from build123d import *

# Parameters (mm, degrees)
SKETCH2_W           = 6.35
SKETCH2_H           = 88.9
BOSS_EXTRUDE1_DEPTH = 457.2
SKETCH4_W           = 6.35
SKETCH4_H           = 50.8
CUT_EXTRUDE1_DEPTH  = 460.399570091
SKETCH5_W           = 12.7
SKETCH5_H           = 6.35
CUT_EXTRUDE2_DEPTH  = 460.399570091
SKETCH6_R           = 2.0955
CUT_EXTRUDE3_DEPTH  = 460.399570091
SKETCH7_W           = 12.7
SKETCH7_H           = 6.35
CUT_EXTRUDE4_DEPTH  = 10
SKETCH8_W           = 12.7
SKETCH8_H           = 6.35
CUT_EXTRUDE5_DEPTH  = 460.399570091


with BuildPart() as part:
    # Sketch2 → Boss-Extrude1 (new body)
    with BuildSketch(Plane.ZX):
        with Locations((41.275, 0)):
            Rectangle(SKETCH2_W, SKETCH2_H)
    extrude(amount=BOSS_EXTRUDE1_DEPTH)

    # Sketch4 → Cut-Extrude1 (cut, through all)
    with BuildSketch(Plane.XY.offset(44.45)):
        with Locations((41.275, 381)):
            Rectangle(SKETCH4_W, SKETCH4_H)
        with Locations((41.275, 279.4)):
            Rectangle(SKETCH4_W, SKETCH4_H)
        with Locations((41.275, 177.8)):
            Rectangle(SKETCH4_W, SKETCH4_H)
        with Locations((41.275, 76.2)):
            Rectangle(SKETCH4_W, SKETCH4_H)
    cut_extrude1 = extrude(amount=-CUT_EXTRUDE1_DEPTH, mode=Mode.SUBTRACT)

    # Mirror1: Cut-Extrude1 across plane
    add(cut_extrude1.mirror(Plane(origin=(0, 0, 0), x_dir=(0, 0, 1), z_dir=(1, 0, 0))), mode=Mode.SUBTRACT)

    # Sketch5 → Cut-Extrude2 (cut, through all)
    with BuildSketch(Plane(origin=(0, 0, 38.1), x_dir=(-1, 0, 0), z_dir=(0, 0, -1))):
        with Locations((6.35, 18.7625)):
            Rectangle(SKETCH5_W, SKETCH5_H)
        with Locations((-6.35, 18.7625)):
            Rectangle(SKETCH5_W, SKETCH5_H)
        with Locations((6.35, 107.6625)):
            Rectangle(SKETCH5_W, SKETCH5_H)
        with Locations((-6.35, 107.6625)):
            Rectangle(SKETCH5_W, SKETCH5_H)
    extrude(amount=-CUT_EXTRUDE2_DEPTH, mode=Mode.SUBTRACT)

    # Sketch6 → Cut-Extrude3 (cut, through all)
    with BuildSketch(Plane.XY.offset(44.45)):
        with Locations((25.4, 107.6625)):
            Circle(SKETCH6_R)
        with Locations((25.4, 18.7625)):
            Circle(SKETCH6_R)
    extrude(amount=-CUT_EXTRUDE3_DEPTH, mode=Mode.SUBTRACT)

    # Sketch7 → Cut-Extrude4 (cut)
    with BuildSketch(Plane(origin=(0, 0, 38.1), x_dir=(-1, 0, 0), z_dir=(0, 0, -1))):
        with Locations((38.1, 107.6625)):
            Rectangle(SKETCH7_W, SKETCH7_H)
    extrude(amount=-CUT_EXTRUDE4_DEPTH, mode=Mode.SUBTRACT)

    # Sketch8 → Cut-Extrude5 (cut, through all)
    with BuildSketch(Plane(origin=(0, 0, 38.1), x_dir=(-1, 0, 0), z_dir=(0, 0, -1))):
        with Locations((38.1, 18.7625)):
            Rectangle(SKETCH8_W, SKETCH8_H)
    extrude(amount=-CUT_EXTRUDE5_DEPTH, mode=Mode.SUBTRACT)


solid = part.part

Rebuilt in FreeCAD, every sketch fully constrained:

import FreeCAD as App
import Part
import Sketcher
from FreeCAD import Vector
Q = App.Units.Quantity

doc = App.newDocument("Part")
params = doc.addObject("Spreadsheet::Sheet", "Params")
for row, (alias, value) in enumerate([
    ("sketch1_width", "3.5 in"),
    ("sketch1_height", "0.25 in"),
    ("pad1_length", "18 in"),
    ("sketch2_height", "2 in"),
    ("sketch2_width", "0.25 in"),
    ("sketch3_width", "1 in"),
    ("sketch3_height", "0.25 in"),
    ("sketch4_diameter", "0.165 in"),
    ("sketch5_width", "0.5 in"),
    ("sketch5_height", "0.25 in"),
    ("pocket4_length", "10 mm"),
    ("sketch6_width", "0.5 in"),
    ("sketch6_height", "0.25 in"),
], start=1):
    params.set(f"A{row}", alias)
    params.set(f"B{row}", "=" + value)
    params.setAlias(f"B{row}", alias)

body = doc.addObject("PartDesign::Body", "Body")

# Sketch on XZ plane
sketch1 = doc.addObject("Sketcher::SketchObject", "Sketch")
body.addObject(sketch1)
sketch1.AttachmentSupport = (doc.XZ_Plane, [""])
sketch1.MapMode = "FlatFace"
sketch1.addGeometry([
    Part.LineSegment(Vector(44, 38, 0), Vector(-44, 38, 0)),
    Part.LineSegment(Vector(-44, 38, 0), Vector(-44, 44, 0)),
    Part.LineSegment(Vector(-44, 44, 0), Vector(44, 44, 0)),
    Part.LineSegment(Vector(44, 44, 0), Vector(44, 38, 0)),
], False)
sketch1.addConstraint([
    Sketcher.Constraint("Coincident", 0, 2, 1, 1),
    Sketcher.Constraint("Coincident", 1, 2, 2, 1),
    Sketcher.Constraint("Coincident", 2, 2, 3, 1),
    Sketcher.Constraint("Coincident", 3, 2, 0, 1),
    Sketcher.Constraint("Horizontal", 0),
    Sketcher.Constraint("Vertical", 1),
    Sketcher.Constraint("Horizontal", 2),
    Sketcher.Constraint("Vertical", 3),
    Sketcher.Constraint("DistanceX", 0, 2, 0, 1, Q("3.5 in")),
    Sketcher.Constraint("DistanceY", 1, 1, 1, 2, Q("0.25 in")),
    Sketcher.Constraint("DistanceY", -1, 1, 0, 2, Q("1.5 in")),
    Sketcher.Constraint("DistanceX", 0, 2, -1, 1, Q("1.75 in")),
])
sketch1.setExpression("Constraints[8]", "Params.sketch1_width")
sketch1.setExpression("Constraints[9]", "Params.sketch1_height")
pad1 = doc.addObject("PartDesign::Pad", "Pad")
body.addObject(pad1)
pad1.Profile = sketch1
pad1.setExpression("Length", "Params.pad1_length")
pad1.Reversed = True

# Sketch on XY plane
sketch2 = doc.addObject("Sketcher::SketchObject", "Sketch001")
body.addObject(sketch2)
sketch2.AttachmentSupport = (doc.XY_Plane, [""])
sketch2.MapMode = "FlatFace"
sketch2.AttachmentOffset = App.Placement(Vector(0, 0, 1.75 * 25.4), App.Rotation())
sketch2.addGeometry([
    Part.LineSegment(Vector(38, 406, 0), Vector(38, 356, 0)),  # 0
    Part.LineSegment(Vector(38, 356, 0), Vector(44, 356, 0)),  # 1
    Part.LineSegment(Vector(44, 356, 0), Vector(44, 406, 0)),  # 2
    Part.LineSegment(Vector(44, 406, 0), Vector(38, 406, 0)),  # 3
    Part.LineSegment(Vector(38, 305, 0), Vector(38, 254, 0)),  # 4
    Part.LineSegment(Vector(38, 254, 0), Vector(44, 254, 0)),  # 5
    Part.LineSegment(Vector(44, 254, 0), Vector(44, 305, 0)),  # 6
    Part.LineSegment(Vector(44, 305, 0), Vector(38, 305, 0)),  # 7
    Part.LineSegment(Vector(38, 203, 0), Vector(38, 152, 0)),  # 8
    Part.LineSegment(Vector(38, 152, 0), Vector(44, 152, 0)),  # 9
    Part.LineSegment(Vector(44, 152, 0), Vector(44, 203, 0)),  # 10
    Part.LineSegment(Vector(44, 203, 0), Vector(38, 203, 0)),  # 11
    Part.LineSegment(Vector(38, 102, 0), Vector(38, 51, 0)),  # 12
    Part.LineSegment(Vector(38, 51, 0), Vector(44, 51, 0)),  # 13
    Part.LineSegment(Vector(44, 51, 0), Vector(44, 102, 0)),  # 14
    Part.LineSegment(Vector(44, 102, 0), Vector(38, 102, 0)),  # 15
], False)
sketch2.addConstraint([
    Sketcher.Constraint("Coincident", 0, 2, 1, 1),
    Sketcher.Constraint("Coincident", 1, 2, 2, 1),
    Sketcher.Constraint("Coincident", 2, 2, 3, 1),
    Sketcher.Constraint("Coincident", 3, 2, 0, 1),
    Sketcher.Constraint("Coincident", 4, 2, 5, 1),
    Sketcher.Constraint("Coincident", 5, 2, 6, 1),
    Sketcher.Constraint("Coincident", 6, 2, 7, 1),
    Sketcher.Constraint("Coincident", 7, 2, 4, 1),
    Sketcher.Constraint("Coincident", 8, 2, 9, 1),
    Sketcher.Constraint("Coincident", 9, 2, 10, 1),
    Sketcher.Constraint("Coincident", 10, 2, 11, 1),
    Sketcher.Constraint("Coincident", 11, 2, 8, 1),
    Sketcher.Constraint("Coincident", 12, 2, 13, 1),
    Sketcher.Constraint("Coincident", 13, 2, 14, 1),
    Sketcher.Constraint("Coincident", 14, 2, 15, 1),
    Sketcher.Constraint("Coincident", 15, 2, 12, 1),
    Sketcher.Constraint("Vertical", 0),
    Sketcher.Constraint("Horizontal", 1),
    Sketcher.Constraint("Vertical", 2),
    Sketcher.Constraint("Horizontal", 3),
    Sketcher.Constraint("Vertical", 4),
    Sketcher.Constraint("Horizontal", 5),
    Sketcher.Constraint("Vertical", 6),
    Sketcher.Constraint("Horizontal", 7),
    Sketcher.Constraint("Vertical", 8),
    Sketcher.Constraint("Horizontal", 9),
    Sketcher.Constraint("Vertical", 10),
    Sketcher.Constraint("Horizontal", 11),
    Sketcher.Constraint("Vertical", 12),
    Sketcher.Constraint("Horizontal", 13),
    Sketcher.Constraint("Vertical", 14),
    Sketcher.Constraint("Horizontal", 15),
    Sketcher.Constraint("Vertical", 3, 2, 4, 2),
    Sketcher.Constraint("Vertical", 2, 2, 5, 2),
    Sketcher.Constraint("Vertical", 7, 2, 8, 2),
    Sketcher.Constraint("Vertical", 6, 2, 9, 2),
    Sketcher.Constraint("Vertical", 11, 2, 12, 2),
    Sketcher.Constraint("Vertical", 10, 2, 13, 2),
    Sketcher.Constraint("Equal", 2, 4),
    Sketcher.Constraint("Equal", 6, 8),
    Sketcher.Constraint("Equal", 10, 12),
    Sketcher.Constraint("DistanceY", 0, 2, 0, 1, Q("2 in")),
    Sketcher.Constraint("DistanceY", -1, 1, 0, 2, Q("14 in")),
    Sketcher.Constraint("DistanceY", -1, 1, 4, 2, Q("10 in")),
    Sketcher.Constraint("DistanceY", -1, 1, 8, 2, Q("6 in")),
    Sketcher.Constraint("DistanceY", -1, 1, 12, 2, Q("2 in")),
    Sketcher.Constraint("DistanceX", 1, 1, 1, 2, Q("0.25 in")),
    Sketcher.Constraint("DistanceX", -1, 1, 0, 2, Q("1.5 in")),
])
sketch2.setExpression("Constraints[41]", "Params.sketch2_height")
sketch2.setExpression("Constraints[46]", "Params.sketch2_width")
pocket1 = doc.addObject("PartDesign::Pocket", "Pocket")
body.addObject(pocket1)
pocket1.Profile = sketch2
pocket1.Type = "ThroughAll"
doc.recompute()

mirrored = doc.addObject("PartDesign::Mirrored", "Mirrored")
body.addObject(mirrored)
mirrored.Originals = [pocket1]
mirrored.MirrorPlane = (doc.YZ_Plane, [""])
body.Tip = mirrored

# Sketch on XY plane
sketch3 = doc.addObject("Sketcher::SketchObject", "Sketch002")
body.addObject(sketch3)
sketch3.AttachmentSupport = (doc.XY_Plane, [""])
sketch3.MapMode = "FlatFace"
sketch3.AttachmentOffset = App.Placement(Vector(0, 0, 1.5 * 25.4), App.Rotation())
sketch3.addGeometry([
    Part.LineSegment(Vector(-13, 16, 0), Vector(-13, 22, 0)),  # 0
    Part.LineSegment(Vector(-13, 22, 0), Vector(13, 22, 0)),  # 1
    Part.LineSegment(Vector(13, 22, 0), Vector(13, 16, 0)),  # 2
    Part.LineSegment(Vector(13, 16, 0), Vector(-13, 16, 0)),  # 3
    Part.LineSegment(Vector(-13, 104, 0), Vector(-13, 111, 0)),  # 4
    Part.LineSegment(Vector(-13, 111, 0), Vector(13, 111, 0)),  # 5
    Part.LineSegment(Vector(13, 111, 0), Vector(13, 104, 0)),  # 6
    Part.LineSegment(Vector(13, 104, 0), Vector(-13, 104, 0)),  # 7
], False)
sketch3.addConstraint([
    Sketcher.Constraint("Coincident", 0, 2, 1, 1),
    Sketcher.Constraint("Coincident", 1, 2, 2, 1),
    Sketcher.Constraint("Coincident", 2, 2, 3, 1),
    Sketcher.Constraint("Coincident", 3, 2, 0, 1),
    Sketcher.Constraint("Coincident", 4, 2, 5, 1),
    Sketcher.Constraint("Coincident", 5, 2, 6, 1),
    Sketcher.Constraint("Coincident", 6, 2, 7, 1),
    Sketcher.Constraint("Coincident", 7, 2, 4, 1),
    Sketcher.Constraint("Vertical", 0),
    Sketcher.Constraint("Horizontal", 1),
    Sketcher.Constraint("Vertical", 2),
    Sketcher.Constraint("Horizontal", 3),
    Sketcher.Constraint("Vertical", 4),
    Sketcher.Constraint("Horizontal", 5),
    Sketcher.Constraint("Vertical", 6),
    Sketcher.Constraint("Horizontal", 7),
    Sketcher.Constraint("Vertical", 3, 2, 4, 2),
    Sketcher.Constraint("Vertical", 2, 2, 5, 2),
    Sketcher.Constraint("Equal", 2, 4),
    Sketcher.Constraint("DistanceX", 1, 1, 1, 2, Q("1 in")),
    Sketcher.Constraint("DistanceY", 0, 1, 0, 2, Q("0.25 in")),
    Sketcher.Constraint("DistanceX", 0, 2, -1, 1, Q("0.5 in")),
    Sketcher.Constraint("DistanceY", 0, 2, 4, 2, Q("3.5 in")),
    Sketcher.Constraint("DistanceY", -1, 1, 0, 2, Q("21.9375 mm")),
])
sketch3.setExpression("Constraints[19]", "Params.sketch3_width")
sketch3.setExpression("Constraints[20]", "Params.sketch3_height")
pocket2 = doc.addObject("PartDesign::Pocket", "Pocket001")
body.addObject(pocket2)
pocket2.Profile = sketch3
pocket2.Type = "ThroughAll"
pocket2.Reversed = True

# Sketch on XY plane
sketch4 = doc.addObject("Sketcher::SketchObject", "Sketch003")
body.addObject(sketch4)
sketch4.AttachmentSupport = (doc.XY_Plane, [""])
sketch4.MapMode = "FlatFace"
sketch4.AttachmentOffset = App.Placement(Vector(0, 0, 1.75 * 25.4), App.Rotation())
sketch4.addGeometry([
    Part.Circle(Vector(25.4, 107.7, 0), Vector(0, 0, 1), 2.1),
    Part.Circle(Vector(25.4, 18.8, 0), Vector(0, 0, 1), 2.1),
], False)
sketch4.addConstraint([
    Sketcher.Constraint("Equal", 0, 1),
    Sketcher.Constraint("Vertical", 0, 3, 1, 3),
    Sketcher.Constraint("Diameter", 0, Q("0.165 in")),
    Sketcher.Constraint("DistanceX", -1, 1, 0, 3, Q("1 in")),
    Sketcher.Constraint("DistanceY", 1, 3, 0, 3, Q("3.5 in")),
    Sketcher.Constraint("DistanceY", -1, 1, 0, 3, Q("107.6625 mm")),
])
sketch4.setExpression("Constraints[2]", "Params.sketch4_diameter")
pocket3 = doc.addObject("PartDesign::Pocket", "Pocket002")
body.addObject(pocket3)
pocket3.Profile = sketch4
pocket3.Type = "ThroughAll"

# Sketch on XY plane
sketch5 = doc.addObject("Sketcher::SketchObject", "Sketch004")
body.addObject(sketch5)
sketch5.AttachmentSupport = (doc.XY_Plane, [""])
sketch5.MapMode = "FlatFace"
sketch5.AttachmentOffset = App.Placement(Vector(0, 0, 1.5 * 25.4), App.Rotation())
sketch5.addGeometry([
    Part.LineSegment(Vector(-32, 111, 0), Vector(-32, 104, 0)),
    Part.LineSegment(Vector(-32, 104, 0), Vector(-44, 104, 0)),
    Part.LineSegment(Vector(-44, 104, 0), Vector(-44, 111, 0)),
    Part.LineSegment(Vector(-44, 111, 0), Vector(-32, 111, 0)),
], False)
sketch5.addConstraint([
    Sketcher.Constraint("Coincident", 0, 2, 1, 1),
    Sketcher.Constraint("Coincident", 1, 2, 2, 1),
    Sketcher.Constraint("Coincident", 2, 2, 3, 1),
    Sketcher.Constraint("Coincident", 3, 2, 0, 1),
    Sketcher.Constraint("Vertical", 0),
    Sketcher.Constraint("Horizontal", 1),
    Sketcher.Constraint("Vertical", 2),
    Sketcher.Constraint("Horizontal", 3),
    Sketcher.Constraint("DistanceX", 1, 2, 1, 1, Q("0.5 in")),
    Sketcher.Constraint("DistanceY", 0, 2, 0, 1, Q("0.25 in")),
    Sketcher.Constraint("DistanceX", 0, 2, -1, 1, Q("1.25 in")),
    Sketcher.Constraint("DistanceY", -1, 1, 0, 2, Q("104.4875 mm")),
])
sketch5.setExpression("Constraints[8]", "Params.sketch5_width")
sketch5.setExpression("Constraints[9]", "Params.sketch5_height")
pocket4 = doc.addObject("PartDesign::Pocket", "Pocket003")
body.addObject(pocket4)
pocket4.Profile = sketch5
pocket4.setExpression("Length", "Params.pocket4_length")
pocket4.Reversed = True

# Sketch on XY plane
sketch6 = doc.addObject("Sketcher::SketchObject", "Sketch005")
body.addObject(sketch6)
sketch6.AttachmentSupport = (doc.XY_Plane, [""])
sketch6.MapMode = "FlatFace"
sketch6.AttachmentOffset = App.Placement(Vector(0, 0, 1.5 * 25.4), App.Rotation())
sketch6.addGeometry([
    Part.LineSegment(Vector(-32, 22, 0), Vector(-32, 16, 0)),
    Part.LineSegment(Vector(-32, 16, 0), Vector(-44, 16, 0)),
    Part.LineSegment(Vector(-44, 16, 0), Vector(-44, 22, 0)),
    Part.LineSegment(Vector(-44, 22, 0), Vector(-32, 22, 0)),
], False)
sketch6.addConstraint([
    Sketcher.Constraint("Coincident", 0, 2, 1, 1),
    Sketcher.Constraint("Coincident", 1, 2, 2, 1),
    Sketcher.Constraint("Coincident", 2, 2, 3, 1),
    Sketcher.Constraint("Coincident", 3, 2, 0, 1),
    Sketcher.Constraint("Vertical", 0),
    Sketcher.Constraint("Horizontal", 1),
    Sketcher.Constraint("Vertical", 2),
    Sketcher.Constraint("Horizontal", 3),
    Sketcher.Constraint("DistanceX", 1, 2, 1, 1, Q("0.5 in")),
    Sketcher.Constraint("DistanceY", 0, 2, 0, 1, Q("0.25 in")),
    Sketcher.Constraint("DistanceX", 0, 2, -1, 1, Q("1.25 in")),
    Sketcher.Constraint("DistanceY", -1, 1, 0, 2, Q("15.5875 mm")),
])
sketch6.setExpression("Constraints[8]", "Params.sketch6_width")
sketch6.setExpression("Constraints[9]", "Params.sketch6_height")
pocket5 = doc.addObject("PartDesign::Pocket", "Pocket004")
body.addObject(pocket5)
pocket5.Profile = sketch6
pocket5.Type = "ThroughAll"
pocket5.Reversed = True

doc.recompute()
